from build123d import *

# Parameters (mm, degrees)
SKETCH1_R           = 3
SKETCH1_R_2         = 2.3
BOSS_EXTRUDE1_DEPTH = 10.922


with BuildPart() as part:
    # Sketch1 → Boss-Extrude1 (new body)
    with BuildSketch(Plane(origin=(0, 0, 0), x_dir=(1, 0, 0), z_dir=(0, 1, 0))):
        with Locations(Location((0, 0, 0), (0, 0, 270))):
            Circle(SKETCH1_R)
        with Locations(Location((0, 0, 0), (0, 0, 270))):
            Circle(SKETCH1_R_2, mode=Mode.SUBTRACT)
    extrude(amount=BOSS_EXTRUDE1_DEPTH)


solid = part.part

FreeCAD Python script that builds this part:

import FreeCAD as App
import Part
import Sketcher

V = App.Vector
Q = App.Units.Quantity

doc = App.newDocument("Part")
body = doc.addObject("PartDesign::Body", "Body")

sketch1 = body.newObject("Sketcher::SketchObject", "Sketch")
sketch1.AttachmentSupport = (doc.getObject("XZ_Plane"), [""])
sketch1.MapMode = "FlatFace"
sketch1.addGeometry([
    Part.Circle(V(0, 0, 0), V(0, 0, 1), 3),
    Part.Circle(V(0, 0, 0), V(0, 0, 1), 2.3),
], False)
sketch1.addConstraint([
    Sketcher.Constraint("Coincident", 0, 3, -1, 1),
    Sketcher.Constraint("Coincident", 1, 3, -1, 1),
    Sketcher.Constraint("Diameter", 0, Q("6 mm")),
    Sketcher.Constraint("Diameter", 1, Q("4.6 mm")),
])
pad1 = body.newObject("PartDesign::Pad", "Pad")
pad1.Profile = sketch1
pad1.Length = 10.922
pad1.Reversed = True

doc.recompute()
